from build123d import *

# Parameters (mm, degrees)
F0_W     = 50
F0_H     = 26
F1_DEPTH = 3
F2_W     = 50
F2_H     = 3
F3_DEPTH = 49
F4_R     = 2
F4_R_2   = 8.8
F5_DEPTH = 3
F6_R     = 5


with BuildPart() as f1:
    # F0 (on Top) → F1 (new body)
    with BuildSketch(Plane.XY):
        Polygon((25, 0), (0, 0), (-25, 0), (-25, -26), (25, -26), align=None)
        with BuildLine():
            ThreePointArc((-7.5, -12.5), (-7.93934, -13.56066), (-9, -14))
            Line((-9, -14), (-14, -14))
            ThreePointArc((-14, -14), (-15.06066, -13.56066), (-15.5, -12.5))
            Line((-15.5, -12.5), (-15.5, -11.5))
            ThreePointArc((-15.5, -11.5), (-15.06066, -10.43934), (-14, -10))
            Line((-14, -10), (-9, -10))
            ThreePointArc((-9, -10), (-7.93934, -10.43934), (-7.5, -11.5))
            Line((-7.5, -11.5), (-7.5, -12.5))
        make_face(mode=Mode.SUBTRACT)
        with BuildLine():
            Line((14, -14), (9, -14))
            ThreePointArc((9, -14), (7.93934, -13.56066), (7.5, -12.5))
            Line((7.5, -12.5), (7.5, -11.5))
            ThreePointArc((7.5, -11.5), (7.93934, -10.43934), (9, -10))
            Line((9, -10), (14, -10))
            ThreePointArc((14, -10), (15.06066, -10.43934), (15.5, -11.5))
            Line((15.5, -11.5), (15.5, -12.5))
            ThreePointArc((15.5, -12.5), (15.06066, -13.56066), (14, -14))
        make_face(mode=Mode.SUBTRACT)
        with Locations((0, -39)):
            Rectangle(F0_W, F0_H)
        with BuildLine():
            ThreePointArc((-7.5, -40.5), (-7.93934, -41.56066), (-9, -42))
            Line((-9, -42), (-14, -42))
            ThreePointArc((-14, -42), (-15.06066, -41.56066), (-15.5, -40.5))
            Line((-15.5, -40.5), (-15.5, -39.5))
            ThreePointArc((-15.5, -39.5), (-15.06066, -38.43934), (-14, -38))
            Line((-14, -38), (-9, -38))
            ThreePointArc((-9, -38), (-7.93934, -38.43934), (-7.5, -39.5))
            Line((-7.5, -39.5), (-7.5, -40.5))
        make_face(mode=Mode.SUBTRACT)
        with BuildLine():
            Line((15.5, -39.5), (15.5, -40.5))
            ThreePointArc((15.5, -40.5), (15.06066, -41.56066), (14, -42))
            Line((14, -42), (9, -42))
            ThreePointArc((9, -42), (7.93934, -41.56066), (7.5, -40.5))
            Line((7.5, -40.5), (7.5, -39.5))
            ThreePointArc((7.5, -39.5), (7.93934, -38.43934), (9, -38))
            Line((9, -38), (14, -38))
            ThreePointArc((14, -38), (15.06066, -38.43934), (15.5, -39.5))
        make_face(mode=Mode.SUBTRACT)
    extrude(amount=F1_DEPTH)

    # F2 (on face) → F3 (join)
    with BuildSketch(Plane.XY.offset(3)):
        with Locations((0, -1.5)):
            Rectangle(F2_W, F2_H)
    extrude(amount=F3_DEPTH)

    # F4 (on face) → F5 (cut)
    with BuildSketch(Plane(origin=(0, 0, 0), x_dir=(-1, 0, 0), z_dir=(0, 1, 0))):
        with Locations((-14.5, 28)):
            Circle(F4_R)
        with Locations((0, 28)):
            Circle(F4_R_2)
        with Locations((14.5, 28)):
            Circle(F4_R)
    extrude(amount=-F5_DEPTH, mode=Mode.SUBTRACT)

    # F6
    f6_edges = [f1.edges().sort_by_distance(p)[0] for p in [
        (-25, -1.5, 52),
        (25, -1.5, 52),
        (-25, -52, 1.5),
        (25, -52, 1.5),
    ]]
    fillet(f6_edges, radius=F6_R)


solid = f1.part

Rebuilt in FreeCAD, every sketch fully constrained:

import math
import FreeCAD as App
import Part
import Sketcher
from FreeCAD import Vector
Q = App.Units.Quantity


def edges_at(feature, points):
    """Names of the edges that pass closest to the given points."""
    edges = feature.Shape.Edges
    near = lambda p: min(range(len(edges)), key=lambda i: edges[i].distToShape(Part.Vertex(*p))[0])
    return sorted({f"Edge{near(p) + 1}" for p in points})


def add_polygon(sketch, points):
    """Adds a closed chain of lines whose ends are joined by coincident constraints."""
    first, n = sketch.GeometryCount, len(points)
    for a, b in zip(points, points[1:] + points[:1]):
        sketch.addGeometry(Part.LineSegment(App.Vector(*a, 0), App.Vector(*b, 0)), False)
    for i in range(n):
        sketch.addConstraint(Sketcher.Constraint("Coincident", first + i, 2, first + (i + 1) % n, 1))

doc = App.newDocument("Part")
params = doc.addObject("Spreadsheet::Sheet", "Params")
for row, (alias, value) in enumerate([
    ("sketch1_radius", "1.500001 mm"),
    ("sketch1_width", "50 mm"),
    ("sketch1_width2", "5 mm"),
    ("sketch1_height", "52 mm"),
    ("sketch1_height2", "1 mm"),
    ("pad1_length", "3 mm"),
    ("sketch2_width", "50 mm"),
    ("sketch2_height", "3 mm"),
    ("pad2_length", "49 mm"),
    ("sketch3_diameter", "4 mm"),
    ("sketch3_diameter2", "17.6 mm"),
    ("pocket1_length", "3 mm"),
    ("fillet_radius", "5 mm"),
], start=1):
    params.set(f"A{row}", alias)
    params.set(f"B{row}", "=" + value)
    params.setAlias(f"B{row}", alias)

body = doc.addObject("PartDesign::Body", "Body")

# Sketch on XY plane
sketch1 = body.newObject("Sketcher::SketchObject", "Sketch")
sketch1.AttachmentSupport = (doc.getObject("XY_Plane"), [""])
sketch1.MapMode = "FlatFace"
add_polygon(sketch1, [(25, 0), (-25, 0), (-25, -52), (25, -52)])  # lines 0-3
sketch1.addGeometry(Part.LineSegment(Vector(-7.5, -39.5, 0), Vector(-7.5, -40.5, 0)), False)  # 4
sketch1.addGeometry(Part.ArcOfCircle(Part.Circle(Vector(-9, -40.5, 0), Vector(0, 0, 1), 1.5), math.radians(-90), math.radians(0)), False)  # 5
sketch1.addGeometry(Part.LineSegment(Vector(-9, -42, 0), Vector(-14, -42, 0)), False)  # 6
sketch1.addGeometry(Part.ArcOfCircle(Part.Circle(Vector(-14, -40.5, 0), Vector(0, 0, 1), 1.5), math.radians(-180), math.radians(-90)), False)  # 7
sketch1.addGeometry(Part.LineSegment(Vector(-15.5, -40.5, 0), Vector(-15.5, -39.5, 0)), False)  # 8
sketch1.addGeometry(Part.ArcOfCircle(Part.Circle(Vector(-14, -39.5, 0), Vector(0, 0, 1), 1.5), math.radians(90), math.radians(180)), False)  # 9
sketch1.addGeometry(Part.LineSegment(Vector(-14, -38, 0), Vector(-9, -38, 0)), False)  # 10
sketch1.addGeometry(Part.ArcOfCircle(Part.Circle(Vector(-9, -39.5, 0), Vector(0, 0, 1), 1.5), math.radians(0), math.radians(90)), False)  # 11
sketch1.addGeometry(Part.ArcOfCircle(Part.Circle(Vector(14, -39.5, 0), Vector(0, 0, 1), 1.5), math.radians(0), math.radians(90)), False)  # 12
sketch1.addGeometry(Part.LineSegment(Vector(15.5, -39.5, 0), Vector(15.5, -40.5, 0)), False)  # 13
sketch1.addGeometry(Part.ArcOfCircle(Part.Circle(Vector(14, -40.5, 0), Vector(0, 0, 1), 1.5), math.radians(-90), math.radians(0)), False)  # 14
sketch1.addGeometry(Part.LineSegment(Vector(14, -42, 0), Vector(9, -42, 0)), False)  # 15
sketch1.addGeometry(Part.ArcOfCircle(Part.Circle(Vector(9, -40.5, 0), Vector(0, 0, 1), 1.5), math.radians(-180), math.radians(-90)), False)  # 16
sketch1.addGeometry(Part.LineSegment(Vector(7.5, -40.5, 0), Vector(7.5, -39.5, 0)), False)  # 17
sketch1.addGeometry(Part.ArcOfCircle(Part.Circle(Vector(9, -39.5, 0), Vector(0, 0, 1), 1.5), math.radians(90), math.radians(180)), False)  # 18
sketch1.addGeometry(Part.LineSegment(Vector(9, -38, 0), Vector(14, -38, 0)), False)  # 19
sketch1.addGeometry(Part.LineSegment(Vector(-7.5, -11.5, 0), Vector(-7.5, -12.5, 0)), False)  # 20
sketch1.addGeometry(Part.ArcOfCircle(Part.Circle(Vector(-9, -12.5, 0), Vector(0, 0, 1), 1.5), math.radians(-90), math.radians(0)), False)  # 21
sketch1.addGeometry(Part.LineSegment(Vector(-9, -14, 0), Vector(-14, -14, 0)), False)  # 22
sketch1.addGeometry(Part.ArcOfCircle(Part.Circle(Vector(-14, -12.5, 0), Vector(0, 0, 1), 1.5), math.radians(-180), math.radians(-90)), False)  # 23
sketch1.addGeometry(Part.LineSegment(Vector(-15.5, -12.5, 0), Vector(-15.5, -11.5, 0)), False)  # 24
sketch1.addGeometry(Part.ArcOfCircle(Part.Circle(Vector(-14, -11.5, 0), Vector(0, 0, 1), 1.5), math.radians(90), math.radians(180)), False)  # 25
sketch1.addGeometry(Part.LineSegment(Vector(-14, -10, 0), Vector(-9, -10, 0)), False)  # 26
sketch1.addGeometry(Part.ArcOfCircle(Part.Circle(Vector(-9, -11.5, 0), Vector(0, 0, 1), 1.5), math.radians(0), math.radians(90)), False)  # 27
sketch1.addGeometry(Part.ArcOfCircle(Part.Circle(Vector(14, -12.5, 0), Vector(0, 0, 1), 1.5), math.radians(-90), math.radians(0)), False)  # 28
sketch1.addGeometry(Part.LineSegment(Vector(14, -14, 0), Vector(9, -14, 0)), False)  # 29
sketch1.addGeometry(Part.ArcOfCircle(Part.Circle(Vector(9, -12.5, 0), Vector(0, 0, 1), 1.5), math.radians(-180), math.radians(-90)), False)  # 30
sketch1.addGeometry(Part.LineSegment(Vector(7.5, -12.5, 0), Vector(7.5, -11.5, 0)), False)  # 31
sketch1.addGeometry(Part.ArcOfCircle(Part.Circle(Vector(9, -11.5, 0), Vector(0, 0, 1), 1.5), math.radians(90), math.radians(180)), False)  # 32
sketch1.addGeometry(Part.LineSegment(Vector(9, -10, 0), Vector(14, -10, 0)), False)  # 33
sketch1.addGeometry(Part.ArcOfCircle(Part.Circle(Vector(14, -11.5, 0), Vector(0, 0, 1), 1.5), math.radians(0), math.radians(90)), False)  # 34
sketch1.addGeometry(Part.LineSegment(Vector(15.5, -11.5, 0), Vector(15.5, -12.5, 0)), False)  # 35
sketch1.addConstraint([
    Sketcher.Constraint("Tangent", 4, 2, 5, 2),
    Sketcher.Constraint("Tangent", 5, 1, 6, 1),
    Sketcher.Constraint("Tangent", 6, 2, 7, 2),
    Sketcher.Constraint("Tangent", 7, 1, 8, 1),
    Sketcher.Constraint("Tangent", 8, 2, 9, 2),
    Sketcher.Constraint("Tangent", 9, 1, 10, 1),
    Sketcher.Constraint("Tangent", 10, 2, 11, 2),
    Sketcher.Constraint("Tangent", 11, 1, 4, 1),
    Sketcher.Constraint("Tangent", 12, 1, 13, 1),
    Sketcher.Constraint("Tangent", 13, 2, 14, 2),
    Sketcher.Constraint("Tangent", 14, 1, 15, 1),
    Sketcher.Constraint("Tangent", 15, 2, 16, 2),
    Sketcher.Constraint("Tangent", 16, 1, 17, 1),
    Sketcher.Constraint("Tangent", 17, 2, 18, 2),
    Sketcher.Constraint("Tangent", 18, 1, 19, 1),
    Sketcher.Constraint("Tangent", 19, 2, 12, 2),
    Sketcher.Constraint("Tangent", 20, 2, 21, 2),
    Sketcher.Constraint("Tangent", 21, 1, 22, 1),
    Sketcher.Constraint("Tangent", 22, 2, 23, 2),
    Sketcher.Constraint("Tangent", 23, 1, 24, 1),
    Sketcher.Constraint("Tangent", 24, 2, 25, 2),
    Sketcher.Constraint("Tangent", 25, 1, 26, 1),
    Sketcher.Constraint("Tangent", 26, 2, 27, 2),
    Sketcher.Constraint("Tangent", 27, 1, 20, 1),
    Sketcher.Constraint("Tangent", 28, 1, 29, 1),
    Sketcher.Constraint("Tangent", 29, 2, 30, 2),
    Sketcher.Constraint("Tangent", 30, 1, 31, 1),
    Sketcher.Constraint("Tangent", 31, 2, 32, 2),
    Sketcher.Constraint("Tangent", 32, 1, 33, 1),
    Sketcher.Constraint("Tangent", 33, 2, 34, 2),
    Sketcher.Constraint("Tangent", 34, 1, 35, 1),
    Sketcher.Constraint("Tangent", 35, 2, 28, 2),
    Sketcher.Constraint("Horizontal", 0),
    Sketcher.Constraint("Vertical", 1),
    Sketcher.Constraint("Horizontal", 2),
    Sketcher.Constraint("Vertical", 3),
    Sketcher.Constraint("Vertical", 4),
    Sketcher.Constraint("Horizontal", 6),
    Sketcher.Constraint("Vertical", 8),
    Sketcher.Constraint("Horizontal", 10),
    Sketcher.Constraint("Vertical", 13),
    Sketcher.Constraint("Horizontal", 15),
    Sketcher.Constraint("Vertical", 17),
    Sketcher.Constraint("Horizontal", 19),
    Sketcher.Constraint("Vertical", 20),
    Sketcher.Constraint("Horizontal", 22),
    Sketcher.Constraint("Vertical", 24),
    Sketcher.Constraint("Horizontal", 26),
    Sketcher.Constraint("Horizontal", 29),
    Sketcher.Constraint("Vertical", 31),
    Sketcher.Constraint("Horizontal", 33),
    Sketcher.Constraint("Vertical", 35),
    Sketcher.Constraint("Equal", 5, 7),
    Sketcher.Constraint("Equal", 7, 9),
    Sketcher.Constraint("Equal", 9, 11),
    Sketcher.Constraint("Equal", 11, 12),
    Sketcher.Constraint("Equal", 12, 14),
    Sketcher.Constraint("Equal", 14, 16),
    Sketcher.Constraint("Equal", 16, 18),
    Sketcher.Constraint("Equal", 18, 21),
    Sketcher.Constraint("Equal", 21, 23),
    Sketcher.Constraint("Equal", 23, 25),
    Sketcher.Constraint("Equal", 25, 27),
    Sketcher.Constraint("Equal", 27, 28),
    Sketcher.Constraint("Equal", 28, 30),
    Sketcher.Constraint("Equal", 30, 32),
    Sketcher.Constraint("Equal", 32, 34),
    Sketcher.Constraint("Symmetric", 0, 2, 3, 2, -1, 1),
    Sketcher.Constraint("Symmetric", 9, 3, 12, 3, -2),
    Sketcher.Constraint("Symmetric", 5, 3, 16, 3, -2),
    Sketcher.Constraint("Symmetric", 23, 3, 28, 3, -2),
    Sketcher.Constraint("Symmetric", 27, 3, 32, 3, -2),
    Sketcher.Constraint("Vertical", 11, 3, 21, 3),
    Sketcher.Constraint("Vertical", 9, 3, 23, 3),
    Sketcher.Constraint("Equal", 17, 20),
    Sketcher.Constraint("Radius", 5, Q("1.500001 mm")),
    Sketcher.Constraint("DistanceX", 0, 2, 0, 1, Q("50 mm")),
    Sketcher.Constraint("DistanceX", 6, 2, 6, 1, Q("5 mm")),
    Sketcher.Constraint("DistanceY", 1, 2, 1, 1, Q("52 mm")),
    Sketcher.Constraint("DistanceY", 4, 2, 4, 1, Q("1 mm")),
    Sketcher.Constraint("DistanceX", 5, 3, -1, 1, Q("9.000001 mm")),
    Sketcher.Constraint("DistanceY", 5, 1, -1, 1, Q("42 mm")),
    Sketcher.Constraint("DistanceY", 21, 1, -1, 1, Q("14 mm")),
])
sketch1.setExpression("Constraints[79]", "Params.sketch1_radius")
sketch1.setExpression("Constraints[80]", "Params.sketch1_width")
sketch1.setExpression("Constraints[81]", "Params.sketch1_width2")
sketch1.setExpression("Constraints[82]", "Params.sketch1_height")
sketch1.setExpression("Constraints[83]", "Params.sketch1_height2")
pad1 = body.newObject("PartDesign::Pad", "Pad")
pad1.Profile = sketch1
pad1.setExpression("Length", "Params.pad1_length")

# Sketch on XY plane
sketch2 = body.newObject("Sketcher::SketchObject", "Sketch001")
sketch2.AttachmentSupport = (doc.getObject("XY_Plane"), [""])
sketch2.MapMode = "FlatFace"
sketch2.AttachmentOffset = App.Placement(Vector(0, 0, 3), App.Rotation())
add_polygon(sketch2, [(-25, 0), (-25, -3), (25, -3), (25, 0)])  # lines 0-3
sketch2.addConstraint([
    Sketcher.Constraint("Vertical", 0),
    Sketcher.Constraint("Horizontal", 1),
    Sketcher.Constraint("Vertical", 2),
    Sketcher.Constraint("Horizontal", 3),
    Sketcher.Constraint("Symmetric", 2, 2, 3, 2, -1, 1),
    Sketcher.Constraint("DistanceX", 1, 1, 1, 2, Q("50 mm")),
    Sketcher.Constraint("DistanceY", 0, 2, 0, 1, Q("3 mm")),
])
sketch2.setExpression("Constraints[9]", "Params.sketch2_width")
sketch2.setExpression("Constraints[10]", "Params.sketch2_height")
pad2 = body.newObject("PartDesign::Pad", "Pad001")
pad2.Profile = sketch2
pad2.setExpression("Length", "Params.pad2_length")

# Sketch on XZ plane
sketch3 = body.newObject("Sketcher::SketchObject", "Sketch002")
sketch3.AttachmentSupport = (doc.getObject("XZ_Plane"), [""])
sketch3.MapMode = "FlatFace"
sketch3.addGeometry([
    Part.Circle(Vector(14.5, 28, 0), Vector(0, 0, 1), 2),
    Part.Circle(Vector(0, 28, 0), Vector(0, 0, 1), 8.8),
    Part.Circle(Vector(-14.5, 28, 0), Vector(0, 0, 1), 2),
], False)
sketch3.addConstraint([
    Sketcher.Constraint("Equal", 0, 2),
    Sketcher.Constraint("Symmetric", 0, 3, 2, 3, -2),
    Sketcher.Constraint("PointOnObject", 1, 3, -2),
    Sketcher.Constraint("Horizontal", 0, 3, 1, 3),
    Sketcher.Constraint("Diameter", 0, Q("4 mm")),
    Sketcher.Constraint("Diameter", 1, Q("17.6 mm")),
    Sketcher.Constraint("DistanceY", -1, 1, 0, 3, Q("28 mm")),
    Sketcher.Constraint("DistanceX", 2, 3, 0, 3, Q("29 mm")),
])
sketch3.setExpression("Constraints[4]", "Params.sketch3_diameter")
sketch3.setExpression("Constraints[5]", "Params.sketch3_diameter2")
pocket1 = body.newObject("PartDesign::Pocket", "Pocket")
pocket1.Profile = sketch3
pocket1.setExpression("Length", "Params.pocket1_length")
pocket1.Reversed = True
doc.recompute()

fillet = body.newObject("PartDesign::Fillet", "Fillet")
fillet.Base = (pocket1, edges_at(pocket1, [
    (-25, -1.5, 52),
    (25, -1.5, 52),
    (-25, -52, 1.5),
    (25, -52, 1.5),
]))
fillet.setExpression("Radius", "Params.fillet_radius")

doc.recompute()
